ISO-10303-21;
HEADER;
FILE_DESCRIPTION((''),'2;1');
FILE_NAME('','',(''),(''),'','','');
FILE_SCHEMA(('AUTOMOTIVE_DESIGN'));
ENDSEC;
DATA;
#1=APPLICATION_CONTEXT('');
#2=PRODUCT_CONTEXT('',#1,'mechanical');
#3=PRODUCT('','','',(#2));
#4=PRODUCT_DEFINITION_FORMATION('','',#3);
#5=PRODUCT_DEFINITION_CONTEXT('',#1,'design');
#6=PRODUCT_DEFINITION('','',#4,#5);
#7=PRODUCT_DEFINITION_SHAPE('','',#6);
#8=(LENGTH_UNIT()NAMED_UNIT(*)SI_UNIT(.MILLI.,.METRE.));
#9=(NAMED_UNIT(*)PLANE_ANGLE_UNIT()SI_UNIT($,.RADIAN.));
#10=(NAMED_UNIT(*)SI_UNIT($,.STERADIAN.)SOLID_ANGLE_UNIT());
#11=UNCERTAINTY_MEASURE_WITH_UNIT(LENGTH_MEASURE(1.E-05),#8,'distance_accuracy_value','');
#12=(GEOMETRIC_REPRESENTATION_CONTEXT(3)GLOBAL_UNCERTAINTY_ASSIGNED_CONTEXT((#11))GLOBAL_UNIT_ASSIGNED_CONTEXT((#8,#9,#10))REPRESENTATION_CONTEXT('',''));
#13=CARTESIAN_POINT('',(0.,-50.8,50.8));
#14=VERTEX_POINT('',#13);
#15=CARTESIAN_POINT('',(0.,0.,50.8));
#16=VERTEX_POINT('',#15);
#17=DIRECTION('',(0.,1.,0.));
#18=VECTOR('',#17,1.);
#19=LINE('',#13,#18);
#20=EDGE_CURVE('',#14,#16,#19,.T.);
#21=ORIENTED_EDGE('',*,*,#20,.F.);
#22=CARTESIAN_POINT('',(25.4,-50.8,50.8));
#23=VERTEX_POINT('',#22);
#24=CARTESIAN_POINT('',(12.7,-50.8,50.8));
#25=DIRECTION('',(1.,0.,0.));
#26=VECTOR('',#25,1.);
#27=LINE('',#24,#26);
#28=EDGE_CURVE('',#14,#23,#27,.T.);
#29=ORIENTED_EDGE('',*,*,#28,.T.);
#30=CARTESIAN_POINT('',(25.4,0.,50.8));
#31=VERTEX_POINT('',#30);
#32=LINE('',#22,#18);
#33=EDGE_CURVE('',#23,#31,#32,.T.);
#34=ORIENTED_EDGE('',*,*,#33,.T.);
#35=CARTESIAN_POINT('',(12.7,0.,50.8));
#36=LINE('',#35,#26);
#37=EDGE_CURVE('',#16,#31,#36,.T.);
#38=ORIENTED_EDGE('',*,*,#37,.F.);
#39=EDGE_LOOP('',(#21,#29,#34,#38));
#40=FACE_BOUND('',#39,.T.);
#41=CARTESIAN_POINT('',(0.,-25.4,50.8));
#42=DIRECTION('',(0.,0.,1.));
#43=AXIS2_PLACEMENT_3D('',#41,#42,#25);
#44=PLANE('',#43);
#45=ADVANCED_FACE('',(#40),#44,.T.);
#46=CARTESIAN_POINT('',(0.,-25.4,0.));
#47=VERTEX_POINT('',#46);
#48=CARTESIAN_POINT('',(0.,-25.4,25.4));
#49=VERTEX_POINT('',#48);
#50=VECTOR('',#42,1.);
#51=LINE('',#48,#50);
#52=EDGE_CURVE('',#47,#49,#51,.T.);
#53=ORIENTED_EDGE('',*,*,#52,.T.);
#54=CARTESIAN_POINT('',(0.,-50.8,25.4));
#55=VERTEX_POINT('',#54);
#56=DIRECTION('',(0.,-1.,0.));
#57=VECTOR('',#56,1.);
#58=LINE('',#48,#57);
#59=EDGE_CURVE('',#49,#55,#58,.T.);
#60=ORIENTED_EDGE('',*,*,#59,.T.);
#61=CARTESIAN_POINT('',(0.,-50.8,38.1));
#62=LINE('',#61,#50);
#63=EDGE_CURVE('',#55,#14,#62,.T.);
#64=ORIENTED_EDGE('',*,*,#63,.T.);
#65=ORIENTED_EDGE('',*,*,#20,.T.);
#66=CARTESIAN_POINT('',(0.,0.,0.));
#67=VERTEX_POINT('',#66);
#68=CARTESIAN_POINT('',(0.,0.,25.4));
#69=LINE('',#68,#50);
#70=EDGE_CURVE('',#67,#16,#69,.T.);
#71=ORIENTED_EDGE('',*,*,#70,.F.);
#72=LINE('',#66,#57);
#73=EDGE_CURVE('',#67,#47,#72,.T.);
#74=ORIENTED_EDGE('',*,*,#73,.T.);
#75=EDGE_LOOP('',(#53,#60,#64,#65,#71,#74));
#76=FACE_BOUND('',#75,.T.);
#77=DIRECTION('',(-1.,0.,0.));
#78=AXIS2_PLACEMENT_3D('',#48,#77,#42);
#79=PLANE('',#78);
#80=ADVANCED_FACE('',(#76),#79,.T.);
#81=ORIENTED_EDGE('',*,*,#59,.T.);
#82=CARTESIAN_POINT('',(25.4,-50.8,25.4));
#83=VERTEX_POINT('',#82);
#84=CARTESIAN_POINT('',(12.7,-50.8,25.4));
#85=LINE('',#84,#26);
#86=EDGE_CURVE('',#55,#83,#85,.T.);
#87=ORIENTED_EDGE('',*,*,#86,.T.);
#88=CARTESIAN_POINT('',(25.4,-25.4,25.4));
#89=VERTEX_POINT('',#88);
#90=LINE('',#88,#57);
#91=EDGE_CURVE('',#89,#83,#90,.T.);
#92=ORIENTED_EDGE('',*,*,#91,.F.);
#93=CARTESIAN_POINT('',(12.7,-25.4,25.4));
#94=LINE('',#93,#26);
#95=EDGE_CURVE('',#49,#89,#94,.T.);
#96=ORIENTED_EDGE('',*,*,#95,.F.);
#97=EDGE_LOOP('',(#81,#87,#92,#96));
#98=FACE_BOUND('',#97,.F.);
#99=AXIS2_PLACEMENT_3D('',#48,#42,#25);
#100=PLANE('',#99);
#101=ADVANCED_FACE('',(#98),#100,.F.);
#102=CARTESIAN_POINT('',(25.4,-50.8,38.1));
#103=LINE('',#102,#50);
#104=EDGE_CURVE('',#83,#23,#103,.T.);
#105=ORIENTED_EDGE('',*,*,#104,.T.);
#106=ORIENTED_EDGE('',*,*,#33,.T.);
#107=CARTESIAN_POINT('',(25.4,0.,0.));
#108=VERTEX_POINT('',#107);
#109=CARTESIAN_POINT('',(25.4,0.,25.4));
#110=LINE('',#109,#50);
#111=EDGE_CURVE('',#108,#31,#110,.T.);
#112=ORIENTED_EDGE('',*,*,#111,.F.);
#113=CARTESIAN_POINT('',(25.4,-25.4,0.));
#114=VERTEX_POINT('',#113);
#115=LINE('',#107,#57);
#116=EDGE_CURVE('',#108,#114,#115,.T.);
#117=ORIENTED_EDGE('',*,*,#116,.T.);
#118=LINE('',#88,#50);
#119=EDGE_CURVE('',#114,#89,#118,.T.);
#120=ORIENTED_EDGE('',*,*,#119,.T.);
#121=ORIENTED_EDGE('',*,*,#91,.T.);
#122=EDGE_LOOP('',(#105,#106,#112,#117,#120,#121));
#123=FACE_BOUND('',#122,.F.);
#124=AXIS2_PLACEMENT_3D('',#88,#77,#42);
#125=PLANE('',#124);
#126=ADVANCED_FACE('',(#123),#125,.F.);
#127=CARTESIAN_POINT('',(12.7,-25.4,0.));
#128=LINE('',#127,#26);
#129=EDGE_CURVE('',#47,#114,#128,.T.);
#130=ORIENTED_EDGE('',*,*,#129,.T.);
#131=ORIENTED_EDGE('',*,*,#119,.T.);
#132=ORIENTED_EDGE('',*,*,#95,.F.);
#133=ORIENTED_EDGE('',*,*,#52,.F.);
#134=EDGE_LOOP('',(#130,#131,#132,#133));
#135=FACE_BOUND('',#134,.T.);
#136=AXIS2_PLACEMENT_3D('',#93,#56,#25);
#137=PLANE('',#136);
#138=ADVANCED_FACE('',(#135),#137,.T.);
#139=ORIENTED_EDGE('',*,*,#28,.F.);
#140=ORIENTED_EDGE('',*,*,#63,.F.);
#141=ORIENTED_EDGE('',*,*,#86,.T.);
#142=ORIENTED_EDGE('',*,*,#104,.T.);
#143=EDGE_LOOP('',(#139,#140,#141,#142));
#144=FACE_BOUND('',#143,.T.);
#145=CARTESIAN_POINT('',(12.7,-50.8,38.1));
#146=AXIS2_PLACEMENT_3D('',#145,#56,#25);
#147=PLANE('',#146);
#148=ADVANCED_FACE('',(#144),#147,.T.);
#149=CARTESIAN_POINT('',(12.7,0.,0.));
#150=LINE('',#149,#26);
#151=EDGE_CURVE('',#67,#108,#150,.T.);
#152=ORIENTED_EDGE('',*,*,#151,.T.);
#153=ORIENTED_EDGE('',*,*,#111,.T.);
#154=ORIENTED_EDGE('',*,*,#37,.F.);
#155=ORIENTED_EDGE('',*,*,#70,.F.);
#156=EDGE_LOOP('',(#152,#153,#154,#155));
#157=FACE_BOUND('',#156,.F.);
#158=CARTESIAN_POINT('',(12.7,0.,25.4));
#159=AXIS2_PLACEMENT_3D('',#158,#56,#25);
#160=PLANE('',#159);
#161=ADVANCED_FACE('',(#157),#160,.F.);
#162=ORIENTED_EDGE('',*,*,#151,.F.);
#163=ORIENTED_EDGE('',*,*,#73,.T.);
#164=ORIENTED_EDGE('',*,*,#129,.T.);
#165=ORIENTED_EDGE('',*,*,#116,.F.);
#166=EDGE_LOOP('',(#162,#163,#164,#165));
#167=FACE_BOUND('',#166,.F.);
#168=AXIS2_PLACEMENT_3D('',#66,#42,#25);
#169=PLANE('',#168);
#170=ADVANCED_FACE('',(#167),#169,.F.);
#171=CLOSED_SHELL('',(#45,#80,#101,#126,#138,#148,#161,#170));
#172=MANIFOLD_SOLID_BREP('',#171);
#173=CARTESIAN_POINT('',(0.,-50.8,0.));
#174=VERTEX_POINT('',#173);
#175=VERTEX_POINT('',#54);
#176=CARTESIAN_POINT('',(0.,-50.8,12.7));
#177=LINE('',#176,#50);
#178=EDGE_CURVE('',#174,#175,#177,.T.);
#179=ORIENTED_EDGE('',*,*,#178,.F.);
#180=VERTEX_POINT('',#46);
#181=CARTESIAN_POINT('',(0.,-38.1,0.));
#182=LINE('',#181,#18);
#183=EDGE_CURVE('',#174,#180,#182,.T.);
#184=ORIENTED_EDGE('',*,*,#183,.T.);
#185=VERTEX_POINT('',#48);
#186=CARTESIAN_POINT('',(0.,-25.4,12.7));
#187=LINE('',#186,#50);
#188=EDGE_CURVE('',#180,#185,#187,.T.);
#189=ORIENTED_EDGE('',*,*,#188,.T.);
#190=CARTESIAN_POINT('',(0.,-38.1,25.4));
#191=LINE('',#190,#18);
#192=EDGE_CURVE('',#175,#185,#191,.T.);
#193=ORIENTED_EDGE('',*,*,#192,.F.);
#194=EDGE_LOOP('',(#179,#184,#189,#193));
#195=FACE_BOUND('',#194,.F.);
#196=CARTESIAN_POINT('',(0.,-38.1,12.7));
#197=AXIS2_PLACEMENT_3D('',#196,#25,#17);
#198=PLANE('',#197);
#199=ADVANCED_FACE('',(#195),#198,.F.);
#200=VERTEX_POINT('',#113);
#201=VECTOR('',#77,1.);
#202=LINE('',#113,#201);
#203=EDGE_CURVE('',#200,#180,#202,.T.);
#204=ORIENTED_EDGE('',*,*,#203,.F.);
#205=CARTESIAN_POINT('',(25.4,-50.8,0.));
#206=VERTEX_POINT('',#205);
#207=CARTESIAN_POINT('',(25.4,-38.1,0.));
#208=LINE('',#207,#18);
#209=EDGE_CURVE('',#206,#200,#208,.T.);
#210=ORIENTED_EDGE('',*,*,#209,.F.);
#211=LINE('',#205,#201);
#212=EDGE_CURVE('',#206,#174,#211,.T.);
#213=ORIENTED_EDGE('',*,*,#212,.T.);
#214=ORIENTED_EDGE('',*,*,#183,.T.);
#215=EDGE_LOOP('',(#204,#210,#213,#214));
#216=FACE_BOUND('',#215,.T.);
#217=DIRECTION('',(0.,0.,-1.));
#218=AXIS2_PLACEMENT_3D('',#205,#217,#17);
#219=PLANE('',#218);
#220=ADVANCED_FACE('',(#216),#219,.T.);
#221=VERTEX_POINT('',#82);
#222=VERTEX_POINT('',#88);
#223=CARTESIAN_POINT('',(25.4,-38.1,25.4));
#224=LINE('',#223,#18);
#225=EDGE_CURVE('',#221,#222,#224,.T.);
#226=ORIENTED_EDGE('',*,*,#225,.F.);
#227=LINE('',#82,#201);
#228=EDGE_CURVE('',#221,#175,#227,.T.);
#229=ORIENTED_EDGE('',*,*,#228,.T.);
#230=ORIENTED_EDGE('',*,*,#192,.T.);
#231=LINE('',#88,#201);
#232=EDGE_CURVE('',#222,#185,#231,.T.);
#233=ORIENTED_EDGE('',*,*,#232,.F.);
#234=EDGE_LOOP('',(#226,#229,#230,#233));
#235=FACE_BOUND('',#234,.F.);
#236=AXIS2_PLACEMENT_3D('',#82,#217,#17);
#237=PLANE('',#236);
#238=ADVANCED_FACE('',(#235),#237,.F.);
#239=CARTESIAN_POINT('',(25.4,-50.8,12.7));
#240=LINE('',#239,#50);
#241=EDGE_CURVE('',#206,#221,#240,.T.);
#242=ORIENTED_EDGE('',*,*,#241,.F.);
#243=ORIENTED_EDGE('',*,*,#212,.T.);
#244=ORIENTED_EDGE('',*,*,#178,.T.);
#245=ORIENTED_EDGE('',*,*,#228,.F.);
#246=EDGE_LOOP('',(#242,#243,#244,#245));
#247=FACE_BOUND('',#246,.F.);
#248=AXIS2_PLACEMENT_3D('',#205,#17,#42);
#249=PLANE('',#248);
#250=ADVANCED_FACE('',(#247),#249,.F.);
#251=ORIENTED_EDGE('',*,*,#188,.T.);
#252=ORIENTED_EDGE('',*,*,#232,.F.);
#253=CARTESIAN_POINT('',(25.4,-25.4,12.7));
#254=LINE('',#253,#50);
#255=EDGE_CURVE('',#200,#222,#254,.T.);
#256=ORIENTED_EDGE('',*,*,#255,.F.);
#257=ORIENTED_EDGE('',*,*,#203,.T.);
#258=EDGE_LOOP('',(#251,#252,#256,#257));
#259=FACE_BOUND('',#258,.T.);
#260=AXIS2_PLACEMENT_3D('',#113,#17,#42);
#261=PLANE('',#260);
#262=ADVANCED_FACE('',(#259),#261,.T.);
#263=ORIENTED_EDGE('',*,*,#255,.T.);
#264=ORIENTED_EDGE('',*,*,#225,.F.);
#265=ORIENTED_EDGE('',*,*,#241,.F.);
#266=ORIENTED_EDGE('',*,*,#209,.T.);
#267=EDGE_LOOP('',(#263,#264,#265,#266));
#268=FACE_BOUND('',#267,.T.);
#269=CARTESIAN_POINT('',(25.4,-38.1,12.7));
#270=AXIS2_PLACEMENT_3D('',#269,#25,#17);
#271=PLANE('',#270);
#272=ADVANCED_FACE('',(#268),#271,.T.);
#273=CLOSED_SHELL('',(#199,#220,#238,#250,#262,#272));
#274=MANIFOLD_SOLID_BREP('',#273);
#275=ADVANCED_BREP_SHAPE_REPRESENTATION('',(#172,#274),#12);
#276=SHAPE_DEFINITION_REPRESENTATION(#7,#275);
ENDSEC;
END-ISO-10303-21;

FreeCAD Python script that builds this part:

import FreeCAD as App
import Part
import Sketcher
Q = App.Units.Quantity

doc = App.newDocument("Part")
params = doc.addObject("Spreadsheet::Sheet", "Params")
for row, (alias, value) in enumerate([
    ("sketch1_width", "1 in"),
    ("sketch1_height", "2 in"),
    ("pad1_length", "1 in"),
    ("sketch2_width", "1 in"),
    ("pad2_length", "1 in"),
    ("sketch3_width", "1 in"),
    ("pad3_length", "1 in"),
], start=1):
    params.set(f"A{row}", alias)
    params.set(f"B{row}", "=" + value)
    params.setAlias(f"B{row}", alias)

body = doc.addObject("PartDesign::Body", "Body")

sketch1 = body.newObject("Sketcher::SketchObject", "Sketch")
sketch1.AttachmentSupport = (doc.getObject("XZ_Plane"), [""])
sketch1.MapMode = "FlatFace"
sketch1.addGeometry([
    Part.LineSegment(App.Vector(0, 51, 0), App.Vector(0, 0, 0)),
    Part.LineSegment(App.Vector(0, 0, 0), App.Vector(25, 0, 0)),
    Part.LineSegment(App.Vector(25, 0, 0), App.Vector(25, 51, 0)),
    Part.LineSegment(App.Vector(25, 51, 0), App.Vector(0, 51, 0)),
], False)
sketch1.addConstraint([
    Sketcher.Constraint("Coincident", 0, 2, 1, 1),
    Sketcher.Constraint("Coincident", 1, 2, 2, 1),
    Sketcher.Constraint("Coincident", 2, 2, 3, 1),
    Sketcher.Constraint("Coincident", 3, 2, 0, 1),
    Sketcher.Constraint("Vertical", 0),
    Sketcher.Constraint("Horizontal", 1),
    Sketcher.Constraint("Vertical", 2),
    Sketcher.Constraint("Horizontal", 3),
    Sketcher.Constraint("Coincident", 0, 2, -1, 1),
    Sketcher.Constraint("DistanceX", 1, 1, 1, 2, Q("1 in")),
    Sketcher.Constraint("DistanceY", 0, 2, 0, 1, Q("2 in")),
])
sketch1.setExpression("Constraints[9]", "Params.sketch1_width")
sketch1.setExpression("Constraints[10]", "Params.sketch1_height")
pad1 = body.newObject("PartDesign::Pad", "Pad")
pad1.Profile = sketch1
pad1.setExpression("Length", "Params.pad1_length")

sketch2 = body.newObject("Sketcher::SketchObject", "Sketch001")
sketch2.AttachmentSupport = (doc.getObject("XZ_Plane"), [""])
sketch2.MapMode = "FlatFace"
sketch2.AttachmentOffset = App.Placement(App.Vector(0, 0, 1 * 25.4), App.Rotation())
sketch2.addGeometry([
    Part.LineSegment(App.Vector(0, 51, 0), App.Vector(0, 25, 0)),
    Part.LineSegment(App.Vector(0, 25, 0), App.Vector(25, 25, 0)),
    Part.LineSegment(App.Vector(25, 25, 0), App.Vector(25, 51, 0)),
    Part.LineSegment(App.Vector(25, 51, 0), App.Vector(0, 51, 0)),
], False)
sketch2.addConstraint([
    Sketcher.Constraint("Coincident", 0, 2, 1, 1),
    Sketcher.Constraint("Coincident", 1, 2, 2, 1),
    Sketcher.Constraint("Coincident", 2, 2, 3, 1),
    Sketcher.Constraint("Coincident", 3, 2, 0, 1),
    Sketcher.Constraint("Vertical", 0),
    Sketcher.Constraint("Horizontal", 1),
    Sketcher.Constraint("Vertical", 2),
    Sketcher.Constraint("Horizontal", 3),
    Sketcher.Constraint("PointOnObject", 0, 2, -2),
    Sketcher.Constraint("Equal", 3, 0),
    Sketcher.Constraint("DistanceX", 1, 1, 1, 2, Q("1 in")),
    Sketcher.Constraint("DistanceY", -1, 1, 0, 2, Q("1 in")),
])
sketch2.setExpression("Constraints[10]", "Params.sketch2_width")
pad2 = body.newObject("PartDesign::Pad", "Pad001")
pad2.Profile = sketch2
pad2.setExpression("Length", "Params.pad2_length")
body2 = doc.addObject("PartDesign::Body", "Body001")

sketch3 = body2.newObject("Sketcher::SketchObject", "Sketch002")
sketch3.AttachmentSupport = (doc.getObject("YZ_Plane001"), [""])
sketch3.MapMode = "FlatFace"
sketch3.AttachmentOffset = App.Placement(App.Vector(0, 0, 1 * 25.4), App.Rotation())
sketch3.addGeometry([
    Part.LineSegment(App.Vector(-51, 25, 0), App.Vector(-51, 0, 0)),
    Part.LineSegment(App.Vector(-51, 0, 0), App.Vector(-25, 0, 0)),
    Part.LineSegment(App.Vector(-25, 0, 0), App.Vector(-25, 25, 0)),
    Part.LineSegment(App.Vector(-25, 25, 0), App.Vector(-51, 25, 0)),
], False)
sketch3.addConstraint([
    Sketcher.Constraint("Coincident", 0, 2, 1, 1),
    Sketcher.Constraint("Coincident", 1, 2, 2, 1),
    Sketcher.Constraint("Coincident", 2, 2, 3, 1),
    Sketcher.Constraint("Coincident", 3, 2, 0, 1),
    Sketcher.Constraint("Vertical", 0),
    Sketcher.Constraint("Horizontal", 1),
    Sketcher.Constraint("Vertical", 2),
    Sketcher.Constraint("Horizontal", 3),
    Sketcher.Constraint("PointOnObject", 0, 2, -1),
    Sketcher.Constraint("Equal", 3, 0),
    Sketcher.Constraint("DistanceX", 1, 1, 1, 2, Q("1 in")),
    Sketcher.Constraint("DistanceX", 0, 2, -1, 1, Q("2 in")),
])
sketch3.setExpression("Constraints[10]", "Params.sketch3_width")
pad3 = body2.newObject("PartDesign::Pad", "Pad002")
pad3.Profile = sketch3
pad3.setExpression("Length", "Params.pad3_length")
pad3.Reversed = True

doc.recompute()
